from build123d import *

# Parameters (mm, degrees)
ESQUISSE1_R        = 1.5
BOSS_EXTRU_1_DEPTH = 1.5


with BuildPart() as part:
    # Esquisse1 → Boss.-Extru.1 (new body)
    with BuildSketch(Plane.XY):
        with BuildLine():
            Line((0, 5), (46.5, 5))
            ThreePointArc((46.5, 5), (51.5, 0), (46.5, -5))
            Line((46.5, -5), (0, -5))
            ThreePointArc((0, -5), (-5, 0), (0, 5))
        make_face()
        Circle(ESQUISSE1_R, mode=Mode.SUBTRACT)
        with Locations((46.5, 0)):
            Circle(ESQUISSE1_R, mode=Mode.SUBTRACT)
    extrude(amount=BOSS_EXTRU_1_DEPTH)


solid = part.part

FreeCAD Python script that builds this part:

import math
import FreeCAD as App
import Part
import Sketcher
Q = App.Units.Quantity

doc = App.newDocument("Part")
body = doc.addObject("PartDesign::Body", "Body")

# Sketch on XY plane
sketch1 = body.newObject("Sketcher::SketchObject", "Sketch")
sketch1.AttachmentSupport = (doc.getObject("XY_Plane"), [""])
sketch1.MapMode = "FlatFace"
sketch1.addGeometry([
    Part.LineSegment(App.Vector(46.5, 5, 0), App.Vector(0, 5, 0)),  # 0
    Part.ArcOfCircle(Part.Circle(App.Vector(0, 0, 0), App.Vector(0, 0, 1), 5), math.radians(90), math.radians(270)),  # 1
    Part.LineSegment(App.Vector(0, -5, 0), App.Vector(46.5, -5, 0)),  # 2
    Part.ArcOfCircle(Part.Circle(App.Vector(46.5, 0, 0), App.Vector(0, 0, 1), 5), math.radians(-90), math.radians(90)),  # 3
    Part.Circle(App.Vector(46.5, 0, 0), App.Vector(0, 0, 1), 1.5),  # 4
    Part.Circle(App.Vector(0, 0, 0), App.Vector(0, 0, 1), 1.5),  # 5
], False)
sketch1.addConstraint([
    Sketcher.Constraint("Tangent", 0, 2, 1, 1),
    Sketcher.Constraint("Tangent", 1, 2, 2, 1),
    Sketcher.Constraint("Tangent", 2, 2, 3, 1),
    Sketcher.Constraint("Tangent", 3, 2, 0, 1),
    Sketcher.Constraint("Horizontal", 0),
    Sketcher.Constraint("Horizontal", 2),
    Sketcher.Constraint("Coincident", 1, 3, -1, 1),
    Sketcher.Constraint("Coincident", 5, 3, -1, 1),
    Sketcher.Constraint("Coincident", 4, 3, 3, 3),
    Sketcher.Constraint("Equal", 4, 5),
    Sketcher.Constraint("Diameter", 4, Q("3 mm")),
    Sketcher.Constraint("Radius", 1, Q("5 mm")),
    Sketcher.Constraint("DistanceX", 0, 2, 0, 1, Q("46.5 mm")),
])
pad1 = body.newObject("PartDesign::Pad", "Pad")
pad1.Profile = sketch1
pad1.Length = 1.5

doc.recompute()
